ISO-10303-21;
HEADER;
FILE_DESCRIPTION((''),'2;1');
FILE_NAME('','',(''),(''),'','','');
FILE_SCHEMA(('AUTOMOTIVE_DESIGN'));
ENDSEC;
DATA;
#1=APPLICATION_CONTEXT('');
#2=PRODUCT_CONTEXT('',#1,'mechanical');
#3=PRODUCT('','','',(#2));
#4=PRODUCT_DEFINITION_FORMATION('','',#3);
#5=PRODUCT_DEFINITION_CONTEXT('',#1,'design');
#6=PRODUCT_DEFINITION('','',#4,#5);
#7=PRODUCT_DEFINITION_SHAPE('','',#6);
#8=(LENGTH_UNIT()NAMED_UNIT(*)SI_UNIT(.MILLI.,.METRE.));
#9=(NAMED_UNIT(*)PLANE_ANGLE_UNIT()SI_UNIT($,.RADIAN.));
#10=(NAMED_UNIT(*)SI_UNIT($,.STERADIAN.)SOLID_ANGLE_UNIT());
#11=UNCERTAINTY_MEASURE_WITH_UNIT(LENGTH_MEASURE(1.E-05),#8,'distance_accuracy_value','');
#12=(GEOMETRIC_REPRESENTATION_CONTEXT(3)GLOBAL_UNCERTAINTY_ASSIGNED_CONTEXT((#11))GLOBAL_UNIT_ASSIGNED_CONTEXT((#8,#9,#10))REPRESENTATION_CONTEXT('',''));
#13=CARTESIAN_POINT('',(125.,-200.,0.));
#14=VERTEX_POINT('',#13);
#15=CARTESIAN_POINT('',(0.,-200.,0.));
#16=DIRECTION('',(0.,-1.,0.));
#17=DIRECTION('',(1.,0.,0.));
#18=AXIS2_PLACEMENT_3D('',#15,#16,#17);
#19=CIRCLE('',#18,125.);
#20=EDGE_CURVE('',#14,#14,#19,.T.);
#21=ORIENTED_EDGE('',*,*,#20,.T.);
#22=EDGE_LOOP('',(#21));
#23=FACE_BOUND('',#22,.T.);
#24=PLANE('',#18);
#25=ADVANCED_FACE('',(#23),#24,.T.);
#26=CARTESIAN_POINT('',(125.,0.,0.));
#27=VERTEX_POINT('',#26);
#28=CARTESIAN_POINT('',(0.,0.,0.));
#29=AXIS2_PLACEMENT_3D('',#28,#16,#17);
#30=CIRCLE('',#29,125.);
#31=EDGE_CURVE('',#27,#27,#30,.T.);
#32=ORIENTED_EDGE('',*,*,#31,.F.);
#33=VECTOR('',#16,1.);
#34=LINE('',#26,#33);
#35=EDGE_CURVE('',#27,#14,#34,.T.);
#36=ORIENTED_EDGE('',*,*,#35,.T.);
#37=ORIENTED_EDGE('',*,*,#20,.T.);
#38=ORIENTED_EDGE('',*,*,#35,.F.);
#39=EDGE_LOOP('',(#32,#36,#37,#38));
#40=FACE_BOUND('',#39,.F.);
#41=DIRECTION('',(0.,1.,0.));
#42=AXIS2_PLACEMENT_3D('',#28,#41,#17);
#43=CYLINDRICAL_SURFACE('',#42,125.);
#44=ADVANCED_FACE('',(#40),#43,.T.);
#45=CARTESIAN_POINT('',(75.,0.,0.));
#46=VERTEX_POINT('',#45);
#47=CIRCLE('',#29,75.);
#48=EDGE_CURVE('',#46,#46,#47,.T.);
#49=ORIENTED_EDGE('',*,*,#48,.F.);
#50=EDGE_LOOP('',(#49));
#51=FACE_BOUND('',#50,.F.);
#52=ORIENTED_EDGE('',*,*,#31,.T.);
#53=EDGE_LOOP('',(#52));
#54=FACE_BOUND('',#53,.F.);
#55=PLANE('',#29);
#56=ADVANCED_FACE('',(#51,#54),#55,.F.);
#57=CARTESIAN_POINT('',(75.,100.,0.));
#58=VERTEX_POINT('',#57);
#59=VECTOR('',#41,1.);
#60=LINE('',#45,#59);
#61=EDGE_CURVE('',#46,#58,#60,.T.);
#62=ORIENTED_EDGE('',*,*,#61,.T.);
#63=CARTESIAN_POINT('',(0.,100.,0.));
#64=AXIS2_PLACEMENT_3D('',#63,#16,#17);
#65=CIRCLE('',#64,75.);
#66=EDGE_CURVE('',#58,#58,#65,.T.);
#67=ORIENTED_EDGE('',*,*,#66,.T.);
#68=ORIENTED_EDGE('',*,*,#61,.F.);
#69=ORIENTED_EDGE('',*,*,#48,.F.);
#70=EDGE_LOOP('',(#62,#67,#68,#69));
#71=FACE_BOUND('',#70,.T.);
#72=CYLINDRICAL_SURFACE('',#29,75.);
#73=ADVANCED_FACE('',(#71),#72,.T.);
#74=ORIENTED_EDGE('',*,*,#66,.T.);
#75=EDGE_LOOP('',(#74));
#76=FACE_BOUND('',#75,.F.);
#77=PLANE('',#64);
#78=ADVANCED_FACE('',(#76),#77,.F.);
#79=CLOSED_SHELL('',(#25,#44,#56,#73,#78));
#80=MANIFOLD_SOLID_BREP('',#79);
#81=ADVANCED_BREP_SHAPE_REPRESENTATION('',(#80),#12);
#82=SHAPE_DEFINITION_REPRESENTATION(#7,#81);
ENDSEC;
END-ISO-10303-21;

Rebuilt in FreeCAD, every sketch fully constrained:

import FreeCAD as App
import Part
import Sketcher

V = App.Vector

doc = App.newDocument("Part")
body = doc.addObject("PartDesign::Body", "Body")

# Sketch on XZ plane
sketch1 = body.newObject("Sketcher::SketchObject", "Sketch")
sketch1.AttachmentSupport = (doc.getObject("XZ_Plane"), [""])
sketch1.MapMode = "FlatFace"
sketch1.addGeometry(Part.Circle(V(0, 0, 0), V(0, 0, 1), 125), False)
sketch1.addConstraint([
    Sketcher.Constraint("Coincident", 0, 3, -1, 1),
    Sketcher.Constraint("Diameter", 0, 250.0),
])
pad1 = body.newObject("PartDesign::Pad", "Pad")
pad1.Profile = sketch1
pad1.Length = 200

# Sketch on XZ plane
sketch2 = body.newObject("Sketcher::SketchObject", "Sketch001")
sketch2.AttachmentSupport = (doc.getObject("XZ_Plane"), [""])
sketch2.MapMode = "FlatFace"
sketch2.addGeometry(Part.Circle(V(0, 0, 0), V(0, 0, 1), 75), False)
sketch2.addConstraint([
    Sketcher.Constraint("Coincident", 0, 3, -1, 1),
    Sketcher.Constraint("Diameter", 0, 150.0),
])
pad2 = body.newObject("PartDesign::Pad", "Pad001")
pad2.Profile = sketch2
pad2.Type = "TwoLengths"
pad2.Length = 25
pad2.Length2 = 100

doc.recompute()
